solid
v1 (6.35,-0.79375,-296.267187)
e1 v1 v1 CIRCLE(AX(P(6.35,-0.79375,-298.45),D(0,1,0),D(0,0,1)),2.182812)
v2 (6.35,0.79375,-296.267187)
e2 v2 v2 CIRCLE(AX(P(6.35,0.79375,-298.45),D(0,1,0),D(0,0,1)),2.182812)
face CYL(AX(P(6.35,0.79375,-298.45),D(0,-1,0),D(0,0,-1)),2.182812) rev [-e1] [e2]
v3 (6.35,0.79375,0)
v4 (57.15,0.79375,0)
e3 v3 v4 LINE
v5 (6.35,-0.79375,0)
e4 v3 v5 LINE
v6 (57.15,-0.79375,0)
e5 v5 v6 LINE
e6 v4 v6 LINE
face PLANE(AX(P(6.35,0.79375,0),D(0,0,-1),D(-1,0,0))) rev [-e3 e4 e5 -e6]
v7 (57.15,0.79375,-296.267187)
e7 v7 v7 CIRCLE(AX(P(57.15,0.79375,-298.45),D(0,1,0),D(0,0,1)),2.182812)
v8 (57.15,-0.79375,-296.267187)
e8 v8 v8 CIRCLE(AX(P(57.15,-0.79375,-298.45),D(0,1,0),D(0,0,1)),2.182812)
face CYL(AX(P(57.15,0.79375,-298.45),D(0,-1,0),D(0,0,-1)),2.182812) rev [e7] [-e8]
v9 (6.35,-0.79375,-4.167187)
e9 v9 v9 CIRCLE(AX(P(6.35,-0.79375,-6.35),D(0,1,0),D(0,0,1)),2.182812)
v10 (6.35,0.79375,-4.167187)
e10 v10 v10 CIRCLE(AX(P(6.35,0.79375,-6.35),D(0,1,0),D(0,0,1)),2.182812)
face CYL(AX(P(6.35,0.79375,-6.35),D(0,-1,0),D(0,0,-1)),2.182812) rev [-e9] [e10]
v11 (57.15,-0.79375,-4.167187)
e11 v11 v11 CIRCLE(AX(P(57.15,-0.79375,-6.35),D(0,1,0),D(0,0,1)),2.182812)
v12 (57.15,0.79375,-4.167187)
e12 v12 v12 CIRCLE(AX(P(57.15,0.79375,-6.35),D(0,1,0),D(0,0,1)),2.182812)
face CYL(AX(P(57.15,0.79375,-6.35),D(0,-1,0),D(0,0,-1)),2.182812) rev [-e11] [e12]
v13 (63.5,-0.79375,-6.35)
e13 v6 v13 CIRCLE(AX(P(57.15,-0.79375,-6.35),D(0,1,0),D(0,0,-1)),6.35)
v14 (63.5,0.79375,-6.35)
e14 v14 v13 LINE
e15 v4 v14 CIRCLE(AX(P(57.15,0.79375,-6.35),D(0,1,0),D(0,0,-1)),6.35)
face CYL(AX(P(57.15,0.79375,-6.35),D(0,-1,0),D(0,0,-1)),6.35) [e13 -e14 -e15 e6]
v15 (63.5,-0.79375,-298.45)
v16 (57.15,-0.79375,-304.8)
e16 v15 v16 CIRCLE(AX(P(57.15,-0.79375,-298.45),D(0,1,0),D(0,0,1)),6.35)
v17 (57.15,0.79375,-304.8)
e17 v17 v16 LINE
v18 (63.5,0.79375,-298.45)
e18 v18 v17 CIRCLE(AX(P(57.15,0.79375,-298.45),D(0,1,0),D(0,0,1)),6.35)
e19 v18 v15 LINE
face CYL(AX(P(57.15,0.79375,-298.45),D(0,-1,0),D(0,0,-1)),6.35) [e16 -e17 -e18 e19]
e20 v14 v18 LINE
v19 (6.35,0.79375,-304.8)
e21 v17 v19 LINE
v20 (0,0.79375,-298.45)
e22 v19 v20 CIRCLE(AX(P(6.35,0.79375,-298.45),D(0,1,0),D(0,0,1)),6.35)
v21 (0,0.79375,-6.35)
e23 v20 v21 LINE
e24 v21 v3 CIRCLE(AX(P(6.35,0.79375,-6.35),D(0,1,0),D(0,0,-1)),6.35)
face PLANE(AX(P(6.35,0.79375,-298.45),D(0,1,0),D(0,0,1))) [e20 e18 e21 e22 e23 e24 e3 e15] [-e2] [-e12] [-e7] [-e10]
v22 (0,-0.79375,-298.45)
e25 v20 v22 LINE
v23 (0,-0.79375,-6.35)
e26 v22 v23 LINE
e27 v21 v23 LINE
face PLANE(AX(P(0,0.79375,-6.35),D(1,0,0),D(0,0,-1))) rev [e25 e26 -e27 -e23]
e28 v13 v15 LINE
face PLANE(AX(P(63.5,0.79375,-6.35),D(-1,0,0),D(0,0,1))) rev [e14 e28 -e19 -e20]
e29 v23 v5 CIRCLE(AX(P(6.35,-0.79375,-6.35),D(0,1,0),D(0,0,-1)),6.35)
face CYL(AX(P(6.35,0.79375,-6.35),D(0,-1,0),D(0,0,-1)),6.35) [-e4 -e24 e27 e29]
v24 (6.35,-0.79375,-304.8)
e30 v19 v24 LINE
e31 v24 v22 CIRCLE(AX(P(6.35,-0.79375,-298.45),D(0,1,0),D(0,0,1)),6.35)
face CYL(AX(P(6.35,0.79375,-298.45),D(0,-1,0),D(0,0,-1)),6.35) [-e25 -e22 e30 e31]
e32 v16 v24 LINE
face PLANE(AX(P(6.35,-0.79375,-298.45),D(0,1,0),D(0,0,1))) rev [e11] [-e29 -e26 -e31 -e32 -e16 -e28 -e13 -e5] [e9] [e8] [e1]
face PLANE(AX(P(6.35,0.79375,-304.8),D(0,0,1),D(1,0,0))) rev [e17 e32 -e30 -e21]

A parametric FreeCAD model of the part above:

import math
import FreeCAD as App
import Part
import Sketcher
Q = App.Units.Quantity

doc = App.newDocument("Part")
body = doc.addObject("PartDesign::Body", "Body")

# Sketch on XZ plane
sketch1 = body.newObject("Sketcher::SketchObject", "Sketch")
sketch1.AttachmentSupport = (doc.getObject("XZ_Plane"), [""])
sketch1.MapMode = "FlatFace"
sketch1.addGeometry(Part.LineSegment(App.Vector(6.3, 0, 0), App.Vector(57.1, 0, 0)), False)
sketch1.addGeometry(Part.ArcOfCircle(Part.Circle(App.Vector(57.2, -6.3, 0), App.Vector(0, 0, 1), 6.3), math.radians(0), math.radians(90)), False)
sketch1.addGeometry(Part.LineSegment(App.Vector(63.5, -6.3, 0), App.Vector(63.5, -298.4, 0)), False)
sketch1.addGeometry(Part.ArcOfCircle(Part.Circle(App.Vector(57.2, -298.5, 0), App.Vector(0, 0, 1), 6.3), math.radians(-90), math.radians(0)), False)
sketch1.addGeometry(Part.LineSegment(App.Vector(57.1, -304.8, 0), App.Vector(6.3, -304.8, 0)), False)
sketch1.addGeometry(Part.ArcOfCircle(Part.Circle(App.Vector(6.3, -298.5, 0), App.Vector(0, 0, 1), 6.3), math.radians(180), math.radians(270)), False)
sketch1.addGeometry(Part.LineSegment(App.Vector(0, -298.4, 0), App.Vector(0, -6.3, 0)), False)
sketch1.addGeometry(Part.ArcOfCircle(Part.Circle(App.Vector(6.3, -6.3, 0), App.Vector(0, 0, 1), 6.3), math.radians(90), math.radians(180)), False)
sketch1.addGeometry(Part.Circle(App.Vector(6.3, -6.3, 0), App.Vector(0, 0, 1), 2.2), False)
sketch1.addGeometry(Part.Circle(App.Vector(57.1, -6.3, 0), App.Vector(0, 0, 1), 2.2), False)
sketch1.addGeometry(Part.Circle(App.Vector(6.3, -298.4, 0), App.Vector(0, 0, 1), 2.2), False)
sketch1.addGeometry(Part.Circle(App.Vector(57.1, -298.4, 0), App.Vector(0, 0, 1), 2.2), False)
sketch1.addConstraint(Sketcher.Constraint("Tangent", 0, 2, 1, 2))
sketch1.addConstraint(Sketcher.Constraint("Tangent", 1, 1, 2, 1))
sketch1.addConstraint(Sketcher.Constraint("Tangent", 2, 2, 3, 2))
sketch1.addConstraint(Sketcher.Constraint("Tangent", 3, 1, 4, 1))
sketch1.addConstraint(Sketcher.Constraint("Tangent", 4, 2, 5, 2))
sketch1.addConstraint(Sketcher.Constraint("Tangent", 5, 1, 6, 1))
sketch1.addConstraint(Sketcher.Constraint("Tangent", 6, 2, 7, 2))
sketch1.addConstraint(Sketcher.Constraint("Tangent", 7, 1, 0, 1))
sketch1.addConstraint(Sketcher.Constraint("Horizontal", 0))
sketch1.addConstraint(Sketcher.Constraint("Vertical", 2))
sketch1.addConstraint(Sketcher.Constraint("Horizontal", 4))
sketch1.addConstraint(Sketcher.Constraint("Vertical", 6))
sketch1.addConstraint(Sketcher.Constraint("Coincident", 8, 3, 7, 3))
sketch1.addConstraint(Sketcher.Constraint("Coincident", 9, 3, 1, 3))
sketch1.addConstraint(Sketcher.Constraint("Coincident", 10, 3, 5, 3))
sketch1.addConstraint(Sketcher.Constraint("Coincident", 11, 3, 3, 3))
sketch1.addConstraint(Sketcher.Constraint("Equal", 1, 3))
sketch1.addConstraint(Sketcher.Constraint("Equal", 3, 5))
sketch1.addConstraint(Sketcher.Constraint("Equal", 5, 7))
sketch1.addConstraint(Sketcher.Constraint("Equal", 8, 9))
sketch1.addConstraint(Sketcher.Constraint("Equal", 9, 10))
sketch1.addConstraint(Sketcher.Constraint("Equal", 10, 11))
sketch1.addConstraint(Sketcher.Constraint("PointOnObject", 0, 2, -1))
sketch1.addConstraint(Sketcher.Constraint("PointOnObject", 5, 1, -2))
sketch1.addConstraint(Sketcher.Constraint("DistanceX", 0, 1, 0, 2, Q("2 in")))
sketch1.addConstraint(Sketcher.Constraint("Radius", 1, Q("0.25 in")))
sketch1.addConstraint(Sketcher.Constraint("Diameter", 8, Q("0.171875 in")))
sketch1.addConstraint(Sketcher.Constraint("DistanceY", 2, 2, 2, 1, Q("11.5 in")))
pad1 = body.newObject("PartDesign::Pad", "Pad")
pad1.Profile = sketch1
pad1.Length = Q("0.0625 in")
pad1.Midplane = True

doc.recompute()
